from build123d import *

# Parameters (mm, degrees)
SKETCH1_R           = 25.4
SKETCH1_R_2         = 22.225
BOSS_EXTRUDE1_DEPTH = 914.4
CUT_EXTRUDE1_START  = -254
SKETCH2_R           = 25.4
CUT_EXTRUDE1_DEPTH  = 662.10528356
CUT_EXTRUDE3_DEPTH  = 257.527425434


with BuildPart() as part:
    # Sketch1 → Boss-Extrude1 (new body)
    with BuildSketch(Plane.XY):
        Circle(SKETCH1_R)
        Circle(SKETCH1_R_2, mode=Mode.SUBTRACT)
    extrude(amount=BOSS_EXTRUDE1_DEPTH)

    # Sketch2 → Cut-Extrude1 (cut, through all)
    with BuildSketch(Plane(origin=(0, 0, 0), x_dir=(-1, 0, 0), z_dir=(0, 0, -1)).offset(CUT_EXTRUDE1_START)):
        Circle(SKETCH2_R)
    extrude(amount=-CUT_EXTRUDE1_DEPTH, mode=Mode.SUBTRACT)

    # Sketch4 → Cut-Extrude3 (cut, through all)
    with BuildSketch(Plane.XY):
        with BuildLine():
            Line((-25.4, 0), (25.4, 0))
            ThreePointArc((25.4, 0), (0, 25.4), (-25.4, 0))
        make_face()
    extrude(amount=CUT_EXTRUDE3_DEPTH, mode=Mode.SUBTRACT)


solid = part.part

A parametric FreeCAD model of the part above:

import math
import FreeCAD as App
import Part
import Sketcher

V = App.Vector
Q = App.Units.Quantity

doc = App.newDocument("Part")
body = doc.addObject("PartDesign::Body", "Body")

# Sketch on XY plane
sketch1 = body.newObject("Sketcher::SketchObject", "Sketch")
sketch1.AttachmentSupport = (doc.getObject("XY_Plane"), [""])
sketch1.MapMode = "FlatFace"
sketch1.addGeometry(Part.Circle(V(0, 0, 0), V(0, 0, 1), 25), False)
sketch1.addGeometry(Part.Circle(V(0, 0, 0), V(0, 0, 1), 22), False)
sketch1.addConstraint(Sketcher.Constraint("Coincident", 0, 3, -1, 1))
sketch1.addConstraint(Sketcher.Constraint("Coincident", 1, 3, -1, 1))
sketch1.addConstraint(Sketcher.Constraint("Diameter", 0, Q("2 in")))
sketch1.addConstraint(Sketcher.Constraint("Diameter", 1, Q("1.75 in")))
pad1 = body.newObject("PartDesign::Pad", "Pad")
pad1.Profile = sketch1
pad1.Length = Q("36 in")

# Sketch on XY plane
sketch2 = body.newObject("Sketcher::SketchObject", "Sketch001")
sketch2.AttachmentSupport = (doc.getObject("XY_Plane"), [""])
sketch2.MapMode = "FlatFace"
sketch2.AttachmentOffset = App.Placement(V(0, 0, 10 * 25.4), App.Rotation())
sketch2.addGeometry(Part.Circle(V(0, 0, 0), V(0, 0, 1), 25), False)
sketch2.addConstraint(Sketcher.Constraint("Coincident", 0, 3, -1, 1))
sketch2.addConstraint(Sketcher.Constraint("Diameter", 0, Q("2 in")))
pocket1 = body.newObject("PartDesign::Pocket", "Pocket")
pocket1.Profile = sketch2
pocket1.Type = "ThroughAll"
pocket1.Reversed = True

# Sketch on XY plane
sketch3 = body.newObject("Sketcher::SketchObject", "Sketch002")
sketch3.AttachmentSupport = (doc.getObject("XY_Plane"), [""])
sketch3.MapMode = "FlatFace"
sketch3.addGeometry(Part.LineSegment(V(-25, 0, 0), V(25, 0, 0)), False)
sketch3.addGeometry(Part.ArcOfCircle(Part.Circle(V(0, 0, 0), V(0, 0, 1), 25), math.radians(0), math.radians(180)), False)
sketch3.addConstraint(Sketcher.Constraint("Coincident", 0, 1, 1, 2))
sketch3.addConstraint(Sketcher.Constraint("Coincident", 1, 1, 0, 2))
sketch3.addConstraint(Sketcher.Constraint("Horizontal", 0))
sketch3.addConstraint(Sketcher.Constraint("Coincident", 1, 3, -1, 1))
sketch3.addConstraint(Sketcher.Constraint("PointOnObject", 0, 1, -1))
sketch3.addConstraint(Sketcher.Constraint("Radius", 1, Q("1 in")))
pocket2 = body.newObject("PartDesign::Pocket", "Pocket001")
pocket2.Profile = sketch3
pocket2.Type = "ThroughAll"
pocket2.Reversed = True

doc.recompute()
